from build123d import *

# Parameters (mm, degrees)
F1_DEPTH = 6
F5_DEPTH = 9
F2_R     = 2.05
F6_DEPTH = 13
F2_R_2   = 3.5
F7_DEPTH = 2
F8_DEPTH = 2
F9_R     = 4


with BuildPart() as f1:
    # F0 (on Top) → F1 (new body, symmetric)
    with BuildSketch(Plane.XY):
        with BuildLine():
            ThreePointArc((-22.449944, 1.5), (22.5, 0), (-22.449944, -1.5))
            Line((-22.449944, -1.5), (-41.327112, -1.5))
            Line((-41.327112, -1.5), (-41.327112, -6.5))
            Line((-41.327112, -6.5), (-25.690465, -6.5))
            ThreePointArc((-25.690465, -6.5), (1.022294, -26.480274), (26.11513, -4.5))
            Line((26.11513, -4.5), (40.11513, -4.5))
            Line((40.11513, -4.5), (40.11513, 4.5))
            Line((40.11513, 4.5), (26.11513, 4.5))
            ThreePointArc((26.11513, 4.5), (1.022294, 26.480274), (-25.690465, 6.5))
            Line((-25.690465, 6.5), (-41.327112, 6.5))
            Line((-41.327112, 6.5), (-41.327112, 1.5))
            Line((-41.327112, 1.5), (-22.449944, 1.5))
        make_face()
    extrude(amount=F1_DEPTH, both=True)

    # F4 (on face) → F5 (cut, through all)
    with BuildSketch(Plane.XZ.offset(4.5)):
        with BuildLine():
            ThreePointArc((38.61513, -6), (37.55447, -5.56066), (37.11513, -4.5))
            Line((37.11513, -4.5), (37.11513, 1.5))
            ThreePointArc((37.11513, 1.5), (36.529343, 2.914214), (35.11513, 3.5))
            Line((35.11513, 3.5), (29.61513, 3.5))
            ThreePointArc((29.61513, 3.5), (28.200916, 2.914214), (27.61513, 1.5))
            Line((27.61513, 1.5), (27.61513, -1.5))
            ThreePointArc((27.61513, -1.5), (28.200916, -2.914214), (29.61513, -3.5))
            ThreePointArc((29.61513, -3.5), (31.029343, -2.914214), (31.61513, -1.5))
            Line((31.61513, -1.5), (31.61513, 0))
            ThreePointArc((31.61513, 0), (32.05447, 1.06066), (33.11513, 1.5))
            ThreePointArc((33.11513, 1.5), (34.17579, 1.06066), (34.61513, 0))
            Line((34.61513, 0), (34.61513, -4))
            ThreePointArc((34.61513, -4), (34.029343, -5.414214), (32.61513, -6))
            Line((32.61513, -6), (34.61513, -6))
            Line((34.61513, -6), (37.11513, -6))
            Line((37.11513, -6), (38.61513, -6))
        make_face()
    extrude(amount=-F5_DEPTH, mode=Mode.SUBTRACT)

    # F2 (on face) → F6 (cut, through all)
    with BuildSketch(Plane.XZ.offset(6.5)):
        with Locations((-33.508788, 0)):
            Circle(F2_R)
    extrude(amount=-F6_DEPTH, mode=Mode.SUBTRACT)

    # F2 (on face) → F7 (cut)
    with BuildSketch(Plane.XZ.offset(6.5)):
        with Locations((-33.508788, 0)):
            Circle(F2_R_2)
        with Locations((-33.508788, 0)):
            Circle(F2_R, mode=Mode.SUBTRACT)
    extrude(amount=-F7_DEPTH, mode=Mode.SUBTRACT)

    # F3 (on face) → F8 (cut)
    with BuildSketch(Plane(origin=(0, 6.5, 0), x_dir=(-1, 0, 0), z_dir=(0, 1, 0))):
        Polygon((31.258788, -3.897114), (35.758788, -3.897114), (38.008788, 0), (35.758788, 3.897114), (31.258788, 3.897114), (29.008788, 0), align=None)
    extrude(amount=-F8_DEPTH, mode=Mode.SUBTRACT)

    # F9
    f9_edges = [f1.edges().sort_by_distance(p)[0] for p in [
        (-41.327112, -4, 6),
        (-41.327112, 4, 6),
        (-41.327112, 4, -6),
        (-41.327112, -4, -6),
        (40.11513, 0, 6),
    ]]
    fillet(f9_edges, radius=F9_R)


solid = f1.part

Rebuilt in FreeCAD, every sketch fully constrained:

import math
import FreeCAD as App
import Part
import Sketcher
from FreeCAD import Vector
Q = App.Units.Quantity


def edges_at(feature, points):
    """Names of the edges that pass closest to the given points."""
    edges = feature.Shape.Edges
    near = lambda p: min(range(len(edges)), key=lambda i: edges[i].distToShape(Part.Vertex(*p))[0])
    return sorted({f"Edge{near(p) + 1}" for p in points})

doc = App.newDocument("Part")
body = doc.addObject("PartDesign::Body", "Body")

# Sketch on XY plane
sketch1 = body.newObject("Sketcher::SketchObject", "Sketch")
sketch1.AttachmentSupport = (doc.getObject("XY_Plane"), [""])
sketch1.MapMode = "FlatFace"
sketch1.addGeometry(Part.ArcOfCircle(Part.Circle(Vector(0, 0, 0), Vector(0, 0, 1), 22.5), math.radians(-176), math.radians(176)), False)
sketch1.addGeometry(Part.LineSegment(Vector(-22.4, -1.5, 0), Vector(-41.3, -1.5, 0)), False)
sketch1.addGeometry(Part.LineSegment(Vector(-41.3, -1.5, 0), Vector(-41.3, -6.5, 0)), False)
sketch1.addGeometry(Part.LineSegment(Vector(-41.3, -6.5, 0), Vector(-25.7, -6.5, 0)), False)
sketch1.addGeometry(Part.ArcOfCircle(Part.Circle(Vector(0, 0, 0), Vector(0, 0, 1), 26.5), math.radians(-166), math.radians(-10)), False)
sketch1.addGeometry(Part.LineSegment(Vector(26.1, -4.5, 0), Vector(40.1, -4.5, 0)), False)
sketch1.addGeometry(Part.LineSegment(Vector(40.1, -4.5, 0), Vector(40.1, 4.5, 0)), False)
sketch1.addGeometry(Part.LineSegment(Vector(40.1, 4.5, 0), Vector(26.1, 4.5, 0)), False)
sketch1.addGeometry(Part.ArcOfCircle(Part.Circle(Vector(0, 0, 0), Vector(0, 0, 1), 26.5), math.radians(10), math.radians(166)), False)
sketch1.addGeometry(Part.LineSegment(Vector(-25.7, 6.5, 0), Vector(-41.3, 6.5, 0)), False)
sketch1.addGeometry(Part.LineSegment(Vector(-41.3, 6.5, 0), Vector(-41.3, 1.5, 0)), False)
sketch1.addGeometry(Part.LineSegment(Vector(-41.3, 1.5, 0), Vector(-22.4, 1.5, 0)), False)
sketch1.addConstraint(Sketcher.Constraint("Coincident", 0, 1, 1, 1))
sketch1.addConstraint(Sketcher.Constraint("Coincident", 1, 2, 2, 1))
sketch1.addConstraint(Sketcher.Constraint("Coincident", 2, 2, 3, 1))
sketch1.addConstraint(Sketcher.Constraint("Coincident", 3, 2, 4, 1))
sketch1.addConstraint(Sketcher.Constraint("Coincident", 4, 2, 5, 1))
sketch1.addConstraint(Sketcher.Constraint("Coincident", 5, 2, 6, 1))
sketch1.addConstraint(Sketcher.Constraint("Coincident", 6, 2, 7, 1))
sketch1.addConstraint(Sketcher.Constraint("Coincident", 7, 2, 8, 1))
sketch1.addConstraint(Sketcher.Constraint("Coincident", 8, 2, 9, 1))
sketch1.addConstraint(Sketcher.Constraint("Coincident", 9, 2, 10, 1))
sketch1.addConstraint(Sketcher.Constraint("Coincident", 10, 2, 11, 1))
sketch1.addConstraint(Sketcher.Constraint("Coincident", 11, 2, 0, 2))
sketch1.addConstraint(Sketcher.Constraint("Horizontal", 1))
sketch1.addConstraint(Sketcher.Constraint("Vertical", 2))
sketch1.addConstraint(Sketcher.Constraint("Horizontal", 3))
sketch1.addConstraint(Sketcher.Constraint("Horizontal", 5))
sketch1.addConstraint(Sketcher.Constraint("Vertical", 6))
sketch1.addConstraint(Sketcher.Constraint("Horizontal", 7))
sketch1.addConstraint(Sketcher.Constraint("Horizontal", 9))
sketch1.addConstraint(Sketcher.Constraint("Vertical", 10))
sketch1.addConstraint(Sketcher.Constraint("Horizontal", 11))
sketch1.addConstraint(Sketcher.Constraint("Coincident", 0, 3, -1, 1))
sketch1.addConstraint(Sketcher.Constraint("Coincident", 4, 3, -1, 1))
sketch1.addConstraint(Sketcher.Constraint("Coincident", 8, 3, -1, 1))
sketch1.addConstraint(Sketcher.Constraint("Equal", 4, 8))
sketch1.addConstraint(Sketcher.Constraint("Symmetric", 2, 2, 9, 2, -1))
sketch1.addConstraint(Sketcher.Constraint("Vertical", 4, 2, 7, 2))
sketch1.addConstraint(Sketcher.Constraint("Vertical", 0, 1, 11, 2))
sketch1.addConstraint(Sketcher.Constraint("Radius", 0, Q("22.5 mm")))
sketch1.addConstraint(Sketcher.Constraint("Radius", 4, Q("26.5 mm")))
sketch1.addConstraint(Sketcher.Constraint("DistanceX", 5, 1, 5, 2, Q("14 mm")))
sketch1.addConstraint(Sketcher.Constraint("DistanceY", 2, 2, 2, 1, Q("5 mm")))
sketch1.addConstraint(Sketcher.Constraint("DistanceY", 6, 1, 6, 2, Q("9 mm")))
sketch1.addConstraint(Sketcher.Constraint("DistanceY", 4, 2, 0, 1, Q("3 mm")))
sketch1.addConstraint(Sketcher.Constraint("DistanceX", 1, 2, 1, 1, Q("18.877168 mm")))
pad1 = body.newObject("PartDesign::Pad", "Pad")
pad1.Profile = sketch1
pad1.Length = 12
pad1.Midplane = True

# Sketch on XZ plane
sketch2 = body.newObject("Sketcher::SketchObject", "Sketch001")
sketch2.AttachmentSupport = (doc.getObject("XZ_Plane"), [""])
sketch2.MapMode = "FlatFace"
sketch2.AttachmentOffset = App.Placement(Vector(0, 0, 4.5), App.Rotation())
sketch2.addGeometry(Part.ArcOfCircle(Part.Circle(Vector(38.6, -4.5, 0), Vector(0, 0, 1), 1.5), math.radians(-180), math.radians(-90)), False)
sketch2.addGeometry(Part.LineSegment(Vector(37.1, -4.5, 0), Vector(37.1, 1.5, 0)), False)
sketch2.addGeometry(Part.ArcOfCircle(Part.Circle(Vector(35.1, 1.5, 0), Vector(0, 0, 1), 2), math.radians(0), math.radians(90)), False)
sketch2.addGeometry(Part.LineSegment(Vector(35.1, 3.5, 0), Vector(29.6, 3.5, 0)), False)
sketch2.addGeometry(Part.ArcOfCircle(Part.Circle(Vector(29.6, 1.5, 0), Vector(0, 0, 1), 2), math.radians(90), math.radians(180)), False)
sketch2.addGeometry(Part.LineSegment(Vector(27.6, 1.5, 0), Vector(27.6, -1.5, 0)), False)
sketch2.addGeometry(Part.ArcOfCircle(Part.Circle(Vector(29.6, -1.5, 0), Vector(0, 0, 1), 2), math.radians(180), math.radians(270)), False)
sketch2.addGeometry(Part.ArcOfCircle(Part.Circle(Vector(29.6, -1.5, 0), Vector(0, 0, 1), 2), math.radians(-90), math.radians(0)), False)
sketch2.addGeometry(Part.LineSegment(Vector(31.6, -1.5, 0), Vector(31.6, 0, 0)), False)
sketch2.addGeometry(Part.ArcOfCircle(Part.Circle(Vector(33.1, 0, 0), Vector(0, 0, 1), 1.5), math.radians(90), math.radians(180)), False)
sketch2.addGeometry(Part.ArcOfCircle(Part.Circle(Vector(33.1, 0, 0), Vector(0, 0, 1), 1.5), math.radians(0), math.radians(90)), False)
sketch2.addGeometry(Part.LineSegment(Vector(34.6, 0, 0), Vector(34.6, -4, 0)), False)
sketch2.addGeometry(Part.ArcOfCircle(Part.Circle(Vector(32.6, -4, 0), Vector(0, 0, 1), 2), math.radians(-90), math.radians(0)), False)
sketch2.addGeometry(Part.LineSegment(Vector(32.6, -6, 0), Vector(38.6, -6, 0)), False)
sketch2.addConstraint(Sketcher.Constraint("Tangent", 0, 1, 1, 1))
sketch2.addConstraint(Sketcher.Constraint("Tangent", 1, 2, 2, 1))
sketch2.addConstraint(Sketcher.Constraint("Tangent", 2, 2, 3, 1))
sketch2.addConstraint(Sketcher.Constraint("Tangent", 3, 2, 4, 1))
sketch2.addConstraint(Sketcher.Constraint("Tangent", 4, 2, 5, 1))
sketch2.addConstraint(Sketcher.Constraint("Tangent", 5, 2, 6, 1))
sketch2.addConstraint(Sketcher.Constraint("Tangent", 6, 2, 7, 1))
sketch2.addConstraint(Sketcher.Constraint("Tangent", 7, 2, 8, 1))
sketch2.addConstraint(Sketcher.Constraint("Tangent", 8, 2, 9, 2))
sketch2.addConstraint(Sketcher.Constraint("Tangent", 9, 1, 10, 2))
sketch2.addConstraint(Sketcher.Constraint("Tangent", 10, 1, 11, 1))
sketch2.addConstraint(Sketcher.Constraint("Tangent", 11, 2, 12, 2))
sketch2.addConstraint(Sketcher.Constraint("Tangent", 12, 1, 13, 1))
sketch2.addConstraint(Sketcher.Constraint("Tangent", 13, 2, 0, 2))
sketch2.addConstraint(Sketcher.Constraint("Vertical", 1))
sketch2.addConstraint(Sketcher.Constraint("Horizontal", 3))
sketch2.addConstraint(Sketcher.Constraint("Vertical", 5))
sketch2.addConstraint(Sketcher.Constraint("Vertical", 8))
sketch2.addConstraint(Sketcher.Constraint("Vertical", 11))
sketch2.addConstraint(Sketcher.Constraint("Horizontal", 13))
sketch2.addConstraint(Sketcher.Constraint("Equal", 2, 4))
sketch2.addConstraint(Sketcher.Constraint("Equal", 4, 6))
sketch2.addConstraint(Sketcher.Constraint("Equal", 6, 7))
sketch2.addConstraint(Sketcher.Constraint("Equal", 0, 9))
sketch2.addConstraint(Sketcher.Constraint("Equal", 9, 10))
sketch2.addConstraint(Sketcher.Constraint("Equal", 7, 12))
sketch2.addConstraint(Sketcher.Constraint("Symmetric", 3, 2, 6, 2, -1))
sketch2.addConstraint(Sketcher.Constraint("PointOnObject", 9, 3, -1))
sketch2.addConstraint(Sketcher.Constraint("Horizontal", 4, 2, 9, 1))
sketch2.addConstraint(Sketcher.Constraint("Vertical", 10, 3, 9, 1))
sketch2.addConstraint(Sketcher.Constraint("Equal", 13, 1))
sketch2.addConstraint(Sketcher.Constraint("Radius", 2, Q("2 mm")))
sketch2.addConstraint(Sketcher.Constraint("Radius", 0, Q("1.500001 mm")))
sketch2.addConstraint(Sketcher.Constraint("DistanceX", 13, 1, 13, 2, Q("6 mm")))
sketch2.addConstraint(Sketcher.Constraint("DistanceX", -1, 1, 0, 3, Q("38.615131 mm")))
pocket1 = body.newObject("PartDesign::Pocket", "Pocket")
pocket1.Profile = sketch2
pocket1.Type = "ThroughAll"

# Sketch on XZ plane
sketch3 = body.newObject("Sketcher::SketchObject", "Sketch002")
sketch3.AttachmentSupport = (doc.getObject("XZ_Plane"), [""])
sketch3.MapMode = "FlatFace"
sketch3.AttachmentOffset = App.Placement(Vector(0, 0, 6.5), App.Rotation())
sketch3.addGeometry(Part.Circle(Vector(-33.5, 0, 0), Vector(0, 0, 1), 2), False)
sketch3.addConstraint(Sketcher.Constraint("PointOnObject", 0, 3, -1))
sketch3.addConstraint(Sketcher.Constraint("Diameter", 0, Q("4.1 mm")))
sketch3.addConstraint(Sketcher.Constraint("DistanceX", 0, 3, -1, 1, Q("33.508788 mm")))
pocket2 = body.newObject("PartDesign::Pocket", "Pocket001")
pocket2.Profile = sketch3
pocket2.Type = "ThroughAll"

# Sketch on XZ plane
sketch4 = body.newObject("Sketcher::SketchObject", "Sketch003")
sketch4.AttachmentSupport = (doc.getObject("XZ_Plane"), [""])
sketch4.MapMode = "FlatFace"
sketch4.AttachmentOffset = App.Placement(Vector(0, 0, 6.5), App.Rotation())
sketch4.addGeometry(Part.Circle(Vector(-33.5, 0, 0), Vector(0, 0, 1), 3.5), False)
sketch4.addGeometry(Part.Circle(Vector(-33.5, 0, 0), Vector(0, 0, 1), 2), False)
sketch4.addConstraint(Sketcher.Constraint("Coincident", 1, 3, 0, 3))
sketch4.addConstraint(Sketcher.Constraint("PointOnObject", 0, 3, -1))
sketch4.addConstraint(Sketcher.Constraint("Diameter", 0, Q("7 mm")))
sketch4.addConstraint(Sketcher.Constraint("Diameter", 1, Q("4.1 mm")))
sketch4.addConstraint(Sketcher.Constraint("DistanceX", 0, 3, -1, 1, Q("33.508788 mm")))
pocket3 = body.newObject("PartDesign::Pocket", "Pocket002")
pocket3.Profile = sketch4
pocket3.Length = 2

# Sketch on XZ plane
sketch5 = body.newObject("Sketcher::SketchObject", "Sketch004")
sketch5.AttachmentSupport = (doc.getObject("XZ_Plane"), [""])
sketch5.MapMode = "FlatFace"
sketch5.AttachmentOffset = App.Placement(Vector(0, 0, -6.5), App.Rotation())
sketch5.addGeometry(Part.LineSegment(Vector(-31.3, -3.9, 0), Vector(-35.8, -3.9, 0)), False)
sketch5.addGeometry(Part.LineSegment(Vector(-35.8, -3.9, 0), Vector(-38, 0, 0)), False)
sketch5.addGeometry(Part.LineSegment(Vector(-38, 0, 0), Vector(-35.8, 3.9, 0)), False)
sketch5.addGeometry(Part.LineSegment(Vector(-35.8, 3.9, 0), Vector(-31.3, 3.9, 0)), False)
sketch5.addGeometry(Part.LineSegment(Vector(-31.3, 3.9, 0), Vector(-29, 0, 0)), False)
sketch5.addGeometry(Part.LineSegment(Vector(-29, 0, 0), Vector(-31.3, -3.9, 0)), False)
sketch5.addConstraint(Sketcher.Constraint("Coincident", 0, 2, 1, 1))
sketch5.addConstraint(Sketcher.Constraint("Coincident", 1, 2, 2, 1))
sketch5.addConstraint(Sketcher.Constraint("Coincident", 2, 2, 3, 1))
sketch5.addConstraint(Sketcher.Constraint("Coincident", 3, 2, 4, 1))
sketch5.addConstraint(Sketcher.Constraint("Coincident", 4, 2, 5, 1))
sketch5.addConstraint(Sketcher.Constraint("Coincident", 5, 2, 0, 1))
sketch5.addConstraint(Sketcher.Constraint("Horizontal", 0))
sketch5.addConstraint(Sketcher.Constraint("Horizontal", 3))
sketch5.addConstraint(Sketcher.Constraint("Symmetric", 0, 2, 2, 2, -1))
sketch5.addConstraint(Sketcher.Constraint("PointOnObject", 1, 2, -1))
sketch5.addConstraint(Sketcher.Constraint("PointOnObject", 4, 2, -1))
sketch5.addConstraint(Sketcher.Constraint("Parallel", 1, 4))
sketch5.addConstraint(Sketcher.Constraint("Parallel", 2, 5))
sketch5.addConstraint(Sketcher.Constraint("Angle", 1, Q("120.000002 deg")))
sketch5.addConstraint(Sketcher.Constraint("DistanceX", 0, 2, 0, 1, Q("4.5 mm")))
sketch5.addConstraint(Sketcher.Constraint("DistanceX", 1, 2, 4, 2, Q("9 mm")))
sketch5.addConstraint(Sketcher.Constraint("DistanceX", 0, 2, -1, 1, Q("35.758788 mm")))
pocket4 = body.newObject("PartDesign::Pocket", "Pocket003")
pocket4.Profile = sketch5
pocket4.Length = 2
pocket4.Reversed = True
doc.recompute()

fillet = body.newObject("PartDesign::Fillet", "Fillet")
fillet.Base = (pocket4, edges_at(pocket4, [
    (-41.327, -4, 6),
    (-41.327, 4, 6),
    (-41.327, 4, -6),
    (-41.327, -4, -6),
    (40.115, 0, 6),
]))
fillet.Radius = 4

doc.recompute()
